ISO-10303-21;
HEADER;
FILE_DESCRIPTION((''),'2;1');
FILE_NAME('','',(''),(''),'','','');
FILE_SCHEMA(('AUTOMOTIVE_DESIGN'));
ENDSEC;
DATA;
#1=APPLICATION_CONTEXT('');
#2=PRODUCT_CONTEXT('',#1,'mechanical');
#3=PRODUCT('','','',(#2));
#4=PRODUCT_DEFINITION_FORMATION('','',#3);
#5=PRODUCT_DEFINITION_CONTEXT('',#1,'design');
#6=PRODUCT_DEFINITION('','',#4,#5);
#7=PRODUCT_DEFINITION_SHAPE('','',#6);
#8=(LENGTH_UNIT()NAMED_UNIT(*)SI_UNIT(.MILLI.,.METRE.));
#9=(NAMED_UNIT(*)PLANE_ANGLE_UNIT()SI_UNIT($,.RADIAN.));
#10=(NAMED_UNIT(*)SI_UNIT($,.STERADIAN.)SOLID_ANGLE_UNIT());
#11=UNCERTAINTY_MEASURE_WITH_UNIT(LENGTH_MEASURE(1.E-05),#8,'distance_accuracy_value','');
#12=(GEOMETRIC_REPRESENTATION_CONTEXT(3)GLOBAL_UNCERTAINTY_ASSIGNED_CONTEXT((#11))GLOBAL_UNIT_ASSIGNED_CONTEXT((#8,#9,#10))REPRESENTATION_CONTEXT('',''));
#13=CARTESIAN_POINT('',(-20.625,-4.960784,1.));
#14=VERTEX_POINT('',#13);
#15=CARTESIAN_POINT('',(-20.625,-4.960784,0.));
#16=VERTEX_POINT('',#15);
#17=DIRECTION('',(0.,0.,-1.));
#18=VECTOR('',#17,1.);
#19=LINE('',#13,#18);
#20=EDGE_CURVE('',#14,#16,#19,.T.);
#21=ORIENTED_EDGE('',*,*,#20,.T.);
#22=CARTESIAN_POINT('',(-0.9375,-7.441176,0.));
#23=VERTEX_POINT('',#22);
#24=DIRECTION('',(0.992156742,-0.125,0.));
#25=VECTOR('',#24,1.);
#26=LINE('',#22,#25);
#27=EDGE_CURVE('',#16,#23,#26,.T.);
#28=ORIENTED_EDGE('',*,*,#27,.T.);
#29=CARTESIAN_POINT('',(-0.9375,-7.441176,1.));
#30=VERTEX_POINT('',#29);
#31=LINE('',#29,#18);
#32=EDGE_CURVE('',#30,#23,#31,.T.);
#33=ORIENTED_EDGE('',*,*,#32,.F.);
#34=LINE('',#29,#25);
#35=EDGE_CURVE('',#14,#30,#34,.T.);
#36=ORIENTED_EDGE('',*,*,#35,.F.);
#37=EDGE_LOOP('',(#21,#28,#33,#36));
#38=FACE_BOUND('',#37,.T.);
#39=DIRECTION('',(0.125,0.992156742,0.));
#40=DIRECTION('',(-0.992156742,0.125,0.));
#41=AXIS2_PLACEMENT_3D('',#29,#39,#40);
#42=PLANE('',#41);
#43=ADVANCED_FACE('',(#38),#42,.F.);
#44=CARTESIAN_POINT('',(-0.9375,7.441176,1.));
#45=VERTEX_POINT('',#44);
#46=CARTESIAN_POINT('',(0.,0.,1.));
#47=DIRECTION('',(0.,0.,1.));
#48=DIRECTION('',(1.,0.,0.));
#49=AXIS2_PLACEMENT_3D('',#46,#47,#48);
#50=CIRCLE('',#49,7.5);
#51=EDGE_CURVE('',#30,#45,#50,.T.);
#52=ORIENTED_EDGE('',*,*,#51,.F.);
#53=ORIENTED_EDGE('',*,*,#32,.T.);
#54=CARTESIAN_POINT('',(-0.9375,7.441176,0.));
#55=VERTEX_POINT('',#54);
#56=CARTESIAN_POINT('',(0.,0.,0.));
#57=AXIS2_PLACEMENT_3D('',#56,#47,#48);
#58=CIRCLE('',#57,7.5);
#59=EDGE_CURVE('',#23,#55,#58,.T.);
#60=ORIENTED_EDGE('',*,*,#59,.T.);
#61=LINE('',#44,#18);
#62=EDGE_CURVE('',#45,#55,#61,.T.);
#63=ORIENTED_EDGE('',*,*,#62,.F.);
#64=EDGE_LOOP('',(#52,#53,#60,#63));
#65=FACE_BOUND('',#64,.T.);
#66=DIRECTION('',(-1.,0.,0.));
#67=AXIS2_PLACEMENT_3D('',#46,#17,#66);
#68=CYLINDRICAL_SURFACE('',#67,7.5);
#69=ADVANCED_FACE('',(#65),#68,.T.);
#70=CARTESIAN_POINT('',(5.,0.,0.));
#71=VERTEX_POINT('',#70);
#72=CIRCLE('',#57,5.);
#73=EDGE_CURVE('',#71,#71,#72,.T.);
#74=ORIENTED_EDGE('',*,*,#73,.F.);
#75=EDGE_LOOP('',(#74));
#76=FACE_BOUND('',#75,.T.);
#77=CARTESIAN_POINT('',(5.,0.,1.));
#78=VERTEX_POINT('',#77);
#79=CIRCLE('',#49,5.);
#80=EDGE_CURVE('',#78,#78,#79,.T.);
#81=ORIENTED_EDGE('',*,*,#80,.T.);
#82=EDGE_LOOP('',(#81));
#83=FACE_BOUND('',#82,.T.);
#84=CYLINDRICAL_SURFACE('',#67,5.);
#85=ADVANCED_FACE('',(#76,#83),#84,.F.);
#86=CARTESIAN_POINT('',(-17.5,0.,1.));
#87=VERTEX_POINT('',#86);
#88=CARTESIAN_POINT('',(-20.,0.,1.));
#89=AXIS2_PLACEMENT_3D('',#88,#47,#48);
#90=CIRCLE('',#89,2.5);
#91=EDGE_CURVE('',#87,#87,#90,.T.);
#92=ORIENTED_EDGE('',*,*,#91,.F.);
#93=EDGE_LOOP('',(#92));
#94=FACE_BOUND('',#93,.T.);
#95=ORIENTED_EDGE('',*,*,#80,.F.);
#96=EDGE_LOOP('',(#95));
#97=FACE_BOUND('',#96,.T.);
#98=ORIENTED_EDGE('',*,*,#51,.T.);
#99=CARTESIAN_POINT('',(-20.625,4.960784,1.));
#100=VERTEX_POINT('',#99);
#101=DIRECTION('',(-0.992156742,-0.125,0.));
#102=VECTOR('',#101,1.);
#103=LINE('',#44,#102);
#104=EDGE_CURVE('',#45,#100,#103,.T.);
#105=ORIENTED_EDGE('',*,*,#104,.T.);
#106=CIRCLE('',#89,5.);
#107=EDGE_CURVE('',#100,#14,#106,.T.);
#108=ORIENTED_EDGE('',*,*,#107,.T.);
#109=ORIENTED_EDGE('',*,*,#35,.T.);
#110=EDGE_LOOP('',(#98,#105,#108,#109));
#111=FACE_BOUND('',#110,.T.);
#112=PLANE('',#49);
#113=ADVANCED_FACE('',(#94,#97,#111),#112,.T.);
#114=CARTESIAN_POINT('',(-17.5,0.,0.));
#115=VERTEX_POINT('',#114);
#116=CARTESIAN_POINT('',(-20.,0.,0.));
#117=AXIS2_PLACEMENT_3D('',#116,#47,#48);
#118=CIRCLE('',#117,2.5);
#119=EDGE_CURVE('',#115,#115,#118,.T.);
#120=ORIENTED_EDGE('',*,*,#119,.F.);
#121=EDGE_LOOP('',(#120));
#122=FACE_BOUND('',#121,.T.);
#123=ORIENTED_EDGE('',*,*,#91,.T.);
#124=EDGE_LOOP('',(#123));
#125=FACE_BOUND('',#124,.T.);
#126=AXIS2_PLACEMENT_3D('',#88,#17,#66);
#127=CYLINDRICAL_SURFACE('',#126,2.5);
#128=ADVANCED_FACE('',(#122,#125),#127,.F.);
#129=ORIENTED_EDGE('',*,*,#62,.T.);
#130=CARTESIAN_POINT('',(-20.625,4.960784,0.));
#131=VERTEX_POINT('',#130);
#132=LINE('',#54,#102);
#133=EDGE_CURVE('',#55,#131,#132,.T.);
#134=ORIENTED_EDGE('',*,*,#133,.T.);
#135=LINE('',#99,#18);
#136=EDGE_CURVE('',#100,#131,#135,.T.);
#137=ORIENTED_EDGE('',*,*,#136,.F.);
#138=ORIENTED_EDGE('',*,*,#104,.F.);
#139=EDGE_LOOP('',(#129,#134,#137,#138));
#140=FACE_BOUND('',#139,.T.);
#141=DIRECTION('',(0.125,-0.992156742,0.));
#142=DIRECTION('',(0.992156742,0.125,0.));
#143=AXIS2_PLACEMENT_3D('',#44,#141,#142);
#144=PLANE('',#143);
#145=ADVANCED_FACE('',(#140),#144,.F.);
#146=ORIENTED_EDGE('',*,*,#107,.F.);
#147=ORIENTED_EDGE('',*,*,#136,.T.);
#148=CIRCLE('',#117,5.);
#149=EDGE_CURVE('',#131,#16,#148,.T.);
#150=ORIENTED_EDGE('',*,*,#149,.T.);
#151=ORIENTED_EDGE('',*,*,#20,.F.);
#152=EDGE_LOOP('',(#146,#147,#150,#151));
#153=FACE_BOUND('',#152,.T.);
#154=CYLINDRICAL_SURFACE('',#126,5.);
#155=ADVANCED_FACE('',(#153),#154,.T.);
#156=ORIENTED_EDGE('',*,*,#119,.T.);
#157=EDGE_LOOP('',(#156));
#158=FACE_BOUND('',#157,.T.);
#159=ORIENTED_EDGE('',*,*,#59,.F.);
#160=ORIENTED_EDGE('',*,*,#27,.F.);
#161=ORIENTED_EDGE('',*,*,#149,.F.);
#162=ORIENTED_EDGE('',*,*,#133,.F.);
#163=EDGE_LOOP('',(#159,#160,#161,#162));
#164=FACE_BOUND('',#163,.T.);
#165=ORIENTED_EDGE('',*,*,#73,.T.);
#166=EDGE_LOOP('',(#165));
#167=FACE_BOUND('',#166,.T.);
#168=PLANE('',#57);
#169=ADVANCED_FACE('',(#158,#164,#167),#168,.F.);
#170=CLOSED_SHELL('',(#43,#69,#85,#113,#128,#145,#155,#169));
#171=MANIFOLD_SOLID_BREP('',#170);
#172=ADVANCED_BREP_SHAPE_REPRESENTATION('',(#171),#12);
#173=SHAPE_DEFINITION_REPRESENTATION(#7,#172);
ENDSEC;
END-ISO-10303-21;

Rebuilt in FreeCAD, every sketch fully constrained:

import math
import FreeCAD as App
import Part
import Sketcher
Q = App.Units.Quantity

doc = App.newDocument("Part")
body = doc.addObject("PartDesign::Body", "Body")

# Sketch on XY plane
sketch1 = body.newObject("Sketcher::SketchObject", "Sketch")
sketch1.AttachmentSupport = (doc.getObject("XY_Plane"), [""])
sketch1.MapMode = "FlatFace"
sketch1.addGeometry(Part.LineSegment(App.Vector(-0.9, 7.4, 0), App.Vector(-20.6, 5, 0)), False)
sketch1.addGeometry(Part.ArcOfCircle(Part.Circle(App.Vector(-20, 0, 0), App.Vector(0, 0, 1), 5), math.radians(97), math.radians(263)), False)
sketch1.addGeometry(Part.LineSegment(App.Vector(-20.6, -5, 0), App.Vector(-0.9, -7.4, 0)), False)
sketch1.addGeometry(Part.ArcOfCircle(Part.Circle(App.Vector(0, 0, 0), App.Vector(0, 0, 1), 7.5), math.radians(-97), math.radians(97)), False)
sketch1.addGeometry(Part.Circle(App.Vector(-20, 0, 0), App.Vector(0, 0, 1), 2.5), False)
sketch1.addGeometry(Part.Circle(App.Vector(0, 0, 0), App.Vector(0, 0, 1), 5), False)
sketch1.addConstraint(Sketcher.Constraint("Tangent", 0, 2, 1, 1))
sketch1.addConstraint(Sketcher.Constraint("Tangent", 1, 2, 2, 1))
sketch1.addConstraint(Sketcher.Constraint("Tangent", 2, 2, 3, 1))
sketch1.addConstraint(Sketcher.Constraint("Tangent", 3, 2, 0, 1))
sketch1.addConstraint(Sketcher.Constraint("Coincident", 3, 3, -1, 1))
sketch1.addConstraint(Sketcher.Constraint("Coincident", 5, 3, -1, 1))
sketch1.addConstraint(Sketcher.Constraint("Coincident", 4, 3, 1, 3))
sketch1.addConstraint(Sketcher.Constraint("Equal", 1, 5))
sketch1.addConstraint(Sketcher.Constraint("PointOnObject", 1, 3, -1))
sketch1.addConstraint(Sketcher.Constraint("Diameter", 4, Q("5 mm")))
sketch1.addConstraint(Sketcher.Constraint("Diameter", 5, Q("10 mm")))
sketch1.addConstraint(Sketcher.Constraint("Radius", 3, Q("7.5 mm")))
sketch1.addConstraint(Sketcher.Constraint("DistanceX", 1, 3, -1, 1, Q("20 mm")))
pad1 = body.newObject("PartDesign::Pad", "Pad")
pad1.Profile = sketch1
pad1.Length = 1

doc.recompute()
